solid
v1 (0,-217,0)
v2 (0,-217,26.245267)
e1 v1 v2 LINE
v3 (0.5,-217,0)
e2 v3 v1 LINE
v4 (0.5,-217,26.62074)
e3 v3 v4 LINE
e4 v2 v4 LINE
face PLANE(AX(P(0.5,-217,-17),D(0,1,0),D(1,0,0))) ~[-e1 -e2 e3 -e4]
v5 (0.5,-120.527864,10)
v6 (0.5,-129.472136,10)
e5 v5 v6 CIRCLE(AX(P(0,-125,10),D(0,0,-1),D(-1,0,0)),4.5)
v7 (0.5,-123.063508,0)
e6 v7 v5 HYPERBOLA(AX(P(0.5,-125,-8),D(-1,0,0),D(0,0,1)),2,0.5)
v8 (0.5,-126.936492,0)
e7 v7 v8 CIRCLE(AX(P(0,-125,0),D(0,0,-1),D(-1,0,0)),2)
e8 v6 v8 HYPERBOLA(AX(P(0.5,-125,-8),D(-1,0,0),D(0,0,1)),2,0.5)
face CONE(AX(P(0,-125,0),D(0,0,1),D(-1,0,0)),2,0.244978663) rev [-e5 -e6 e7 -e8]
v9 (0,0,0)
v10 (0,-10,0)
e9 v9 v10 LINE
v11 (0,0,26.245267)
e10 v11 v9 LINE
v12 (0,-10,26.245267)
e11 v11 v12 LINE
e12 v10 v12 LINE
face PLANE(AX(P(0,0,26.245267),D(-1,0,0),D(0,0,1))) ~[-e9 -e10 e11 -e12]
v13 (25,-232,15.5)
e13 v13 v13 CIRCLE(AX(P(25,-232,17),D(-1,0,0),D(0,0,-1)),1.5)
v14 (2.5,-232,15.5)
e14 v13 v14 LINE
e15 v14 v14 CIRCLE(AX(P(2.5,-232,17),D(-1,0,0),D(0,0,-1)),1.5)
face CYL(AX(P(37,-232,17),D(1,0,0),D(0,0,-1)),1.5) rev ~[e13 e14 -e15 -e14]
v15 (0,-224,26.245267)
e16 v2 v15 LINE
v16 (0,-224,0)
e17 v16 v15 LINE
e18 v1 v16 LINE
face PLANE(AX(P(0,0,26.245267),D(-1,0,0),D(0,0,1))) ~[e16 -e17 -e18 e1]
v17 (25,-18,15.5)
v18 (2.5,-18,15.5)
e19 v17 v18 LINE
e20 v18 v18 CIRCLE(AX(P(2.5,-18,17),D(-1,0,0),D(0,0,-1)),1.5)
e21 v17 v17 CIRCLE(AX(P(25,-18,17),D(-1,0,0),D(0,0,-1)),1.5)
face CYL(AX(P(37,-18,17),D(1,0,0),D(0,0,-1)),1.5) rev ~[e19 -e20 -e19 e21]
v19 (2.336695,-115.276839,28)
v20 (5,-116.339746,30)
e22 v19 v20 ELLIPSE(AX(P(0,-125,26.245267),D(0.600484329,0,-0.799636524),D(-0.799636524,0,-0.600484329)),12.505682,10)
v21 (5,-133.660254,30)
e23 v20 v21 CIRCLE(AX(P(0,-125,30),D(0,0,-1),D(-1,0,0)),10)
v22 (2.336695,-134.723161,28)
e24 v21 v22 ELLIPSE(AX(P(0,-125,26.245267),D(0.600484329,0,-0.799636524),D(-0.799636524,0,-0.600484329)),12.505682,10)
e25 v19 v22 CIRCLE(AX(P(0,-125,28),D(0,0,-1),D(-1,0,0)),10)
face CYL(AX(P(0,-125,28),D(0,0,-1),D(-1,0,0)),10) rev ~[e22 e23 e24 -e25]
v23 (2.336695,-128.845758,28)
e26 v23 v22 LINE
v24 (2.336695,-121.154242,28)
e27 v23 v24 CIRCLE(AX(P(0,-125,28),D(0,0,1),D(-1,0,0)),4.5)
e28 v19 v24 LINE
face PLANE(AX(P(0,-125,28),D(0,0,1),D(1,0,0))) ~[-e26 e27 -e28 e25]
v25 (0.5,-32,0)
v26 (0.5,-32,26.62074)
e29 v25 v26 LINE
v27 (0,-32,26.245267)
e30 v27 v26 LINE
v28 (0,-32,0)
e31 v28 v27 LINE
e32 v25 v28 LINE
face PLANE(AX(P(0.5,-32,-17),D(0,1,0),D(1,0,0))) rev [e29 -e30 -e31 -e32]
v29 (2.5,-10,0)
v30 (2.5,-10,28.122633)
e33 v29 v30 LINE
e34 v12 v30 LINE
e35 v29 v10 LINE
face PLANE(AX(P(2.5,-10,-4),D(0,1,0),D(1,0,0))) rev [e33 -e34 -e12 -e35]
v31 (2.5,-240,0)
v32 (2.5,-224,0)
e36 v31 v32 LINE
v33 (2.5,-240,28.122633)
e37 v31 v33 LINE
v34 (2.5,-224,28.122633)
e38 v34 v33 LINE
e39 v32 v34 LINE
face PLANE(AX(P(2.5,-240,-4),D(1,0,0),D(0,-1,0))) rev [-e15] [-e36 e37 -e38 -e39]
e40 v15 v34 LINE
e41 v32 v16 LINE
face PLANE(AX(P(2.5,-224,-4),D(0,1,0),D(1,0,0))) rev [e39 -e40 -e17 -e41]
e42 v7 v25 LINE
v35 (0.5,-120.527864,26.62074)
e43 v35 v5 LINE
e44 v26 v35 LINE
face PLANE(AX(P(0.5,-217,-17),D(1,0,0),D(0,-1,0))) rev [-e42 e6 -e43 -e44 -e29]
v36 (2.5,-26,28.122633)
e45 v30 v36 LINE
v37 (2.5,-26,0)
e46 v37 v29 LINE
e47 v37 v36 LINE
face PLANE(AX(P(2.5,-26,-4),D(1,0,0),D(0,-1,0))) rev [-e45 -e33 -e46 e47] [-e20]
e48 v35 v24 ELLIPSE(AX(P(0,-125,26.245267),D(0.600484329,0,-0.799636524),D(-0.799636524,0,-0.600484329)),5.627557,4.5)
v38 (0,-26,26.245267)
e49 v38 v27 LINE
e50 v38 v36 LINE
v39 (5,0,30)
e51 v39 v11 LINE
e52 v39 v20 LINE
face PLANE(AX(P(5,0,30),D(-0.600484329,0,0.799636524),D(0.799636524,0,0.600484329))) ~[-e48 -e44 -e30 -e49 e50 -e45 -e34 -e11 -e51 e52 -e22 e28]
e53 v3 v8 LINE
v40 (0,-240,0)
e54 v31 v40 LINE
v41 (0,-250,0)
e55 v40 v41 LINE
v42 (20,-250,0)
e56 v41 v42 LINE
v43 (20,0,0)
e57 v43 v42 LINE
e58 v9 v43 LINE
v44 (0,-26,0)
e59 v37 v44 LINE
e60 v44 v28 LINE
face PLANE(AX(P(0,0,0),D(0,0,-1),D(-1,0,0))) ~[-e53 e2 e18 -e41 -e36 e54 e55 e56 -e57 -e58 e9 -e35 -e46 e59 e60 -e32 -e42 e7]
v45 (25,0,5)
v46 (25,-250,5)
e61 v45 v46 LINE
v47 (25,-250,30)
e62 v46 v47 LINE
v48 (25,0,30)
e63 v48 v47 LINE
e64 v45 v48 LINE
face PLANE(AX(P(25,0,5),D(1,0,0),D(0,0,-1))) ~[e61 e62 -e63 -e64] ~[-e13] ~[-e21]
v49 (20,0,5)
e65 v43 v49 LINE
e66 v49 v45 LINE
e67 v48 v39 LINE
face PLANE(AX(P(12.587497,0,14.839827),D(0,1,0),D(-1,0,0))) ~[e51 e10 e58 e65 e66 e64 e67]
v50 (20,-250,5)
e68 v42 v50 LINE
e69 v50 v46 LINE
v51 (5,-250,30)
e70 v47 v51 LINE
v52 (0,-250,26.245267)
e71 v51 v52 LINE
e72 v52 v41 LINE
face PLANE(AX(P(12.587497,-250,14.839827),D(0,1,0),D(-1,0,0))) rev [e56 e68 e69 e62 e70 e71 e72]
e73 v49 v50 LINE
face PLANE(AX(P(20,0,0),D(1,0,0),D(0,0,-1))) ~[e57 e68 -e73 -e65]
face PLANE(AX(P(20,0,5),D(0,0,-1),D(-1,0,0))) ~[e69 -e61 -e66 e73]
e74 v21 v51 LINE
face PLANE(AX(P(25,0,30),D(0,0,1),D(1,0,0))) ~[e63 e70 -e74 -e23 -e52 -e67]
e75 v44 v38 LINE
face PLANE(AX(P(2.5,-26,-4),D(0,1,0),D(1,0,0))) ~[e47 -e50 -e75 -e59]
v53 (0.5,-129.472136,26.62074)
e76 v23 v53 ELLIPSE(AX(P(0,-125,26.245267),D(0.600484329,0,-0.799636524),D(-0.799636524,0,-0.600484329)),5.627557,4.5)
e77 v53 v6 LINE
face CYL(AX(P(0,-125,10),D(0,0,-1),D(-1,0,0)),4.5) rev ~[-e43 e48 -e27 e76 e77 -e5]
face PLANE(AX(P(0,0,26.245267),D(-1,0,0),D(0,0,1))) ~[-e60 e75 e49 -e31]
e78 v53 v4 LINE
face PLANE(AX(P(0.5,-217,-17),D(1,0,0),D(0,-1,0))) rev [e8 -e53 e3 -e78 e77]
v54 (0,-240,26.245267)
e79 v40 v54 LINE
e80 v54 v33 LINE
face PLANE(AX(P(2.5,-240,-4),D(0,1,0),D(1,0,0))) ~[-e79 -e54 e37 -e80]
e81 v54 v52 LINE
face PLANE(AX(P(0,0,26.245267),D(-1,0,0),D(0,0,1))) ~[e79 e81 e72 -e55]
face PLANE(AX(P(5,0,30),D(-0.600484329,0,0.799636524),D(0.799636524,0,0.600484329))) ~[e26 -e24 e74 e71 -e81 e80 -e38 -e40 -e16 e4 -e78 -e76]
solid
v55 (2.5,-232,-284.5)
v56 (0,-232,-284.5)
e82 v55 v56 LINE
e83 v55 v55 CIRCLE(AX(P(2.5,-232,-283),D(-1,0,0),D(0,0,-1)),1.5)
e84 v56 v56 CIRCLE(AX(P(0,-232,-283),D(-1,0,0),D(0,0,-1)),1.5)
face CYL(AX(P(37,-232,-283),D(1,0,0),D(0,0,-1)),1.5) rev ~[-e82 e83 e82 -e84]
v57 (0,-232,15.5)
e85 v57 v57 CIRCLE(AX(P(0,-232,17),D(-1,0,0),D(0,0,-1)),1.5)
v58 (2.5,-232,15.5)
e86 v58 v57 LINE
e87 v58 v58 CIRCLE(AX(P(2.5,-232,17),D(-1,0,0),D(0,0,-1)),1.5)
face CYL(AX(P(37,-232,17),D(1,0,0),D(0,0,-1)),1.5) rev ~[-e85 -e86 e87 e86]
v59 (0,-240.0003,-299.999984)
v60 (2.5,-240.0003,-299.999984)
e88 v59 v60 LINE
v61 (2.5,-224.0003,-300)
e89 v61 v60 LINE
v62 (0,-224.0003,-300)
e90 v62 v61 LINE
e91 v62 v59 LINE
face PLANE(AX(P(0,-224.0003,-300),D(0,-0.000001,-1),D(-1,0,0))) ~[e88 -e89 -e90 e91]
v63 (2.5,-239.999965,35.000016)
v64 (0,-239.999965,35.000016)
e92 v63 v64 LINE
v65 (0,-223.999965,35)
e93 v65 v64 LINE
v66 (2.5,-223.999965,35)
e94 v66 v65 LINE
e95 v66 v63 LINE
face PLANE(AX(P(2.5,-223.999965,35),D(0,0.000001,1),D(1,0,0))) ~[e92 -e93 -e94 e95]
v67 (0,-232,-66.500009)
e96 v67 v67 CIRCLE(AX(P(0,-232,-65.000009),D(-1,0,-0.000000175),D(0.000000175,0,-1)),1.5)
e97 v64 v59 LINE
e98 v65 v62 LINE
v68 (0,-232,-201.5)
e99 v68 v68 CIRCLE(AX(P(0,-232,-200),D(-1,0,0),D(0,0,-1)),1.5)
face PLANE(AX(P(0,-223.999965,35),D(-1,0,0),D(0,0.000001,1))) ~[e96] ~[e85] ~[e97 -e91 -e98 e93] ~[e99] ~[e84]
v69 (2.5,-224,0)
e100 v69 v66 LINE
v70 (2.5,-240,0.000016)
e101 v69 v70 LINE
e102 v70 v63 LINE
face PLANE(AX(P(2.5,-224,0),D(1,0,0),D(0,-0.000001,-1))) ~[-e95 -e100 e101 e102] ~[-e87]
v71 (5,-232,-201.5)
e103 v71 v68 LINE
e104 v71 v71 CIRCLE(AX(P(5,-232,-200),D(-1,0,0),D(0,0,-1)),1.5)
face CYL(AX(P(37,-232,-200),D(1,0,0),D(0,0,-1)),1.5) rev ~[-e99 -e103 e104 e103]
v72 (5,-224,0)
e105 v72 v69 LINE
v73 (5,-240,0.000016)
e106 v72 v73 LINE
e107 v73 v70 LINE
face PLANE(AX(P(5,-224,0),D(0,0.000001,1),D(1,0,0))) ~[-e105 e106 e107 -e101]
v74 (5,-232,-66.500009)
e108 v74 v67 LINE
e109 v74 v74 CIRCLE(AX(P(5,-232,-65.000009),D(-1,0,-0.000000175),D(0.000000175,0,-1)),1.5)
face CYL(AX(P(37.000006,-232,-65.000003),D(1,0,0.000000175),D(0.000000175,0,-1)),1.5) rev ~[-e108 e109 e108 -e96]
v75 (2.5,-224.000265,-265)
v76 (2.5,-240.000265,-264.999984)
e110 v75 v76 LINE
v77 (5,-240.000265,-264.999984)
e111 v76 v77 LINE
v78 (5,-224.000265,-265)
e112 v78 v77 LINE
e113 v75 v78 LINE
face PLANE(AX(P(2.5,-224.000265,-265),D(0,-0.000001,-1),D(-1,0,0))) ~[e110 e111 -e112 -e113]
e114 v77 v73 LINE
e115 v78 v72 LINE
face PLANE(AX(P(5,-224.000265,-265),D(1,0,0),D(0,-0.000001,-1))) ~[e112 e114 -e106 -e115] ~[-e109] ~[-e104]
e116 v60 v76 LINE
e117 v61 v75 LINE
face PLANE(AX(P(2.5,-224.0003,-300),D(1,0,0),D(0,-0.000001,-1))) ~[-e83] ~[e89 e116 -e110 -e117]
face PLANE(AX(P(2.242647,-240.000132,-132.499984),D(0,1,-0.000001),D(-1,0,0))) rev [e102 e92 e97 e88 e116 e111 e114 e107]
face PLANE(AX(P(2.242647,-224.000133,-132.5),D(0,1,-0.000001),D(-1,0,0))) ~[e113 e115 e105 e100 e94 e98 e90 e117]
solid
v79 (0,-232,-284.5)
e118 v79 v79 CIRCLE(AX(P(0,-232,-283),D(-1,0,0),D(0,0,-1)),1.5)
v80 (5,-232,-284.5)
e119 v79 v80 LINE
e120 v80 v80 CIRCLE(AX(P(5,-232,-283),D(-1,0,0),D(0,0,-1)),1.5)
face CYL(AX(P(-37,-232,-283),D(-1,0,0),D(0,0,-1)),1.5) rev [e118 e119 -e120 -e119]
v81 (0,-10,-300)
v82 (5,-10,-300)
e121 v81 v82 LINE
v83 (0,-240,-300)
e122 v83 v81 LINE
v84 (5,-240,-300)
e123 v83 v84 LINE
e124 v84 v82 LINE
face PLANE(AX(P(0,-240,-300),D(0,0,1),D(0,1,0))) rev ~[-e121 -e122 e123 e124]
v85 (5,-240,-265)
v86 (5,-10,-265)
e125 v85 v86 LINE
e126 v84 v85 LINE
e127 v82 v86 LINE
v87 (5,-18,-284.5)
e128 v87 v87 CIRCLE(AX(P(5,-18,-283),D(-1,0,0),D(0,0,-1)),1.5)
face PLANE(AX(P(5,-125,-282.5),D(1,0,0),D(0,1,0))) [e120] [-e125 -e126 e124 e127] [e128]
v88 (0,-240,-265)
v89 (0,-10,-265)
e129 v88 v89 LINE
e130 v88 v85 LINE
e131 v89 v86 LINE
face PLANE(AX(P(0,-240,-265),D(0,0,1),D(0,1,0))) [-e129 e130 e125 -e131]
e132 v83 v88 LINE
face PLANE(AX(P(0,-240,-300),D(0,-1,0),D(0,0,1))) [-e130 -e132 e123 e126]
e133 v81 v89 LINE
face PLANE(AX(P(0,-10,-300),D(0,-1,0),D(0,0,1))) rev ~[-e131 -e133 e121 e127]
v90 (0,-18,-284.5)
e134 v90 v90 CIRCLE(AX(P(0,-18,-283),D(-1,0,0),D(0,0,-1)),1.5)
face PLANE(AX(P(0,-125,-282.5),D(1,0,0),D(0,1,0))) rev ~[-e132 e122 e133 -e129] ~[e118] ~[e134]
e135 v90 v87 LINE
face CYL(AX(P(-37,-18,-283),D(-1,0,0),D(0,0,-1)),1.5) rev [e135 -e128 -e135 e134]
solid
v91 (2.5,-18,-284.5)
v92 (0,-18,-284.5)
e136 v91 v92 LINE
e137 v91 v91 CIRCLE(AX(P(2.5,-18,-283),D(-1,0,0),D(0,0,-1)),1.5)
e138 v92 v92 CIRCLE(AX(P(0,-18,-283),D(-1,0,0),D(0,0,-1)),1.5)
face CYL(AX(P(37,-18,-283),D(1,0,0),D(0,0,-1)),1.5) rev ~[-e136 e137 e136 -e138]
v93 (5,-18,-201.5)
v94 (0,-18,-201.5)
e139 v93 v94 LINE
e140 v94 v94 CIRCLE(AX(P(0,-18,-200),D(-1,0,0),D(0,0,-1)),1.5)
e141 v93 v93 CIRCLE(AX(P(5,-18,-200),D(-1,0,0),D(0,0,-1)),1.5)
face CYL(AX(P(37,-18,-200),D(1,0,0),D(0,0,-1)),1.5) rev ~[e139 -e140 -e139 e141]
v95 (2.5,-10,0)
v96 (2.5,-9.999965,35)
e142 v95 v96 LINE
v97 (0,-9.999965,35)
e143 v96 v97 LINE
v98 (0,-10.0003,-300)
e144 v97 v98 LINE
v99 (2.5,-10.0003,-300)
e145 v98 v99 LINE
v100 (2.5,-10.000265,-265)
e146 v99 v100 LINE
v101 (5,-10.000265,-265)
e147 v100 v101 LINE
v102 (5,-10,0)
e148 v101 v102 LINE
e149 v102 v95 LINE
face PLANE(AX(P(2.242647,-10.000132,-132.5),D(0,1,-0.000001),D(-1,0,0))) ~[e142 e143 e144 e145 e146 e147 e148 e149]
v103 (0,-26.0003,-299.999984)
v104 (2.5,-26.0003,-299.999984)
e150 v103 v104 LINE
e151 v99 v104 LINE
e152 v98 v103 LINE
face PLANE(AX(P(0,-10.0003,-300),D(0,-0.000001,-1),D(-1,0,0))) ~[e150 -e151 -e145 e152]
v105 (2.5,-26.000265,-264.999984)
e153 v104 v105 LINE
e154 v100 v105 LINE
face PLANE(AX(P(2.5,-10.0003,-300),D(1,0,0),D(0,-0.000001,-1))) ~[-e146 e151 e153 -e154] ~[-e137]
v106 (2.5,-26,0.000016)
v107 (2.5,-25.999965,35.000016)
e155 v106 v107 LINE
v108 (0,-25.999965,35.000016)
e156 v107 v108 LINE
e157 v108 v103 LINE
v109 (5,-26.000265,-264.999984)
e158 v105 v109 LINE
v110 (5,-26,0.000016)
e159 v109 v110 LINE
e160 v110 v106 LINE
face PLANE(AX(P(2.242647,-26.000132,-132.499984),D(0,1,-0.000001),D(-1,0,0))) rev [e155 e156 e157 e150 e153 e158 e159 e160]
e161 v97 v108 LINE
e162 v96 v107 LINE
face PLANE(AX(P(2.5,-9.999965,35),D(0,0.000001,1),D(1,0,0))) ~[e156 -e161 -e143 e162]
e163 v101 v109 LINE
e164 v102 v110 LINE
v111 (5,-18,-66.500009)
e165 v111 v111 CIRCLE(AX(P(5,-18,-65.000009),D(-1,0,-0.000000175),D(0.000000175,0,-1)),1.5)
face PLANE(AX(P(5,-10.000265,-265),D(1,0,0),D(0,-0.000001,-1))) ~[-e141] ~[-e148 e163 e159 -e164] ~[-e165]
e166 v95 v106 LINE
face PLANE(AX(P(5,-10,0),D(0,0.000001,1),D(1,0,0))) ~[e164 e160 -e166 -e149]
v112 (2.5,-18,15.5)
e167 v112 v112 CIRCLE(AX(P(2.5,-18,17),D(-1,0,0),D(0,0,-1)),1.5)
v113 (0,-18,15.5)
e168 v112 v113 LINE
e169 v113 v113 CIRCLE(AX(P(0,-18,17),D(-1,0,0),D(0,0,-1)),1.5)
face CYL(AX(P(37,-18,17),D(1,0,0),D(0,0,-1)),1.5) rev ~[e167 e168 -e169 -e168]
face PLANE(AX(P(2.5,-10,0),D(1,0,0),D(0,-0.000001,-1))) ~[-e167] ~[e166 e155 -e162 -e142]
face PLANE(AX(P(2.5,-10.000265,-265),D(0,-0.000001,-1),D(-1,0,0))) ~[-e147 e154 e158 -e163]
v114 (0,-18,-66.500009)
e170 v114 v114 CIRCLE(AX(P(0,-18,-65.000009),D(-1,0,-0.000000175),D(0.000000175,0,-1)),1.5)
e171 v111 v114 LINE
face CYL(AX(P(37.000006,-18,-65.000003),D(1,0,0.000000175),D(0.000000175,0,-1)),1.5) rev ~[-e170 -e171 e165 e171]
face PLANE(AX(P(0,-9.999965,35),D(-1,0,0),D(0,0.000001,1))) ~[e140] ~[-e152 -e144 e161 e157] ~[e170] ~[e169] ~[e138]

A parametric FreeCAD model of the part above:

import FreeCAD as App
import Part
import Sketcher
from FreeCAD import Vector


def add_polygon(sketch, points):
    """Adds a closed chain of lines whose ends are joined by coincident constraints."""
    first, n = sketch.GeometryCount, len(points)
    for a, b in zip(points, points[1:] + points[:1]):
        sketch.addGeometry(Part.LineSegment(App.Vector(*a, 0), App.Vector(*b, 0)), False)
    for i in range(n):
        sketch.addConstraint(Sketcher.Constraint("Coincident", first + i, 2, first + (i + 1) % n, 1))

doc = App.newDocument("Part")
params = doc.addObject("Spreadsheet::Sheet", "Params")
for row, (alias, value) in enumerate([
    ("sketch1_diameter", "3 mm"),
    ("pad1_length", "47 mm"),
    ("sketch2_diameter", "3 mm"),
    ("pad2_length", "47 mm"),
    ("sketch3_width", "230 mm"),
    ("sketch3_height", "35 mm"),
    ("pad3_length", "5 mm"),
    ("sketch4_diameter", "3 mm"),
    ("pad4_length", "47 mm"),
    ("sketch5_diameter", "3 mm"),
    ("pad5_length", "47 mm"),
    ("sketch6_width", "2 mm"),
    ("sketch6_height", "10 mm"),
    ("sketch6_width2", "4.5 mm"),
    ("revolution_angle", "360 deg"),
    ("sketch7_diameter", "20 mm"),
    ("pad6_length", "2 mm"),
    ("sketch8_diameter", "9 mm"),
    ("pad7_length", "20 mm"),
    ("sketch9_height", "185 mm"),
    ("sketch9_width", "2.6 mm"),
    ("pad8_length", "45 mm"),
    ("sketch10_height", "16 mm"),
    ("sketch10_width", "6.6 mm"),
    ("pad9_length", "45 mm"),
    ("sketch11_height", "16 mm"),
    ("sketch11_width", "7.6 mm"),
    ("pad10_length", "45 mm"),
    ("sketch12_width", "20 mm"),
    ("sketch12_width2", "5 mm"),
    ("sketch12_height", "25 mm"),
    ("pad11_length", "250 mm"),
    ("sketch13_diameter", "3 mm"),
    ("pad12_length", "47 mm"),
    ("sketch14_diameter", "3 mm"),
    ("pad13_length", "47 mm"),
    ("sketch15_diameter", "3 mm"),
    ("pad14_length", "47 mm"),
    ("sketch16_diameter", "3 mm"),
    ("pad15_length", "47 mm"),
    ("sketch17_height", "265 mm"),
    ("sketch17_height2", "35 mm"),
    ("sketch17_width", "2.5 mm"),
    ("pad16_length", "16 mm"),
], start=1):
    params.set(f"A{row}", alias)
    params.set(f"B{row}", "=" + value)
    params.setAlias(f"B{row}", alias)

body = doc.addObject("PartDesign::Body", "Body")

sketch1 = body.newObject("Sketcher::SketchObject", "Sketch")
sketch1.AttachmentSupport = (doc.getObject("XY_Plane"), [""])
sketch1.MapMode = "FlatFace"
sketch1.addGeometry(Part.Circle(Vector(0, 0, 0), Vector(0, 0, 1), 1.5), False)
sketch1.addConstraint(Sketcher.Constraint("Coincident", 0, 3, -1, 1))
sketch1.addConstraint(Sketcher.Constraint("Diameter", 0, 3.0))
sketch1.setExpression("Constraints[1]", "Params.sketch1_diameter")
pad1 = body.newObject("PartDesign::Pad", "Pad")
pad1.Profile = sketch1
pad1.setExpression("Length", "Params.pad1_length")
body2 = doc.addObject("PartDesign::Body", "Body001")
doc.recompute()

body.Placement = App.Placement(Vector(0, 0, 0), App.Rotation(Vector(0, 1, 0), 90))
boolean = body2.newObject("PartDesign::Boolean", "Boolean")
boolean.Type = "Fuse"
boolean.addObjects([body])
body3 = doc.addObject("PartDesign::Body", "Body002")
doc.recompute()

body2.Placement = App.Placement(Vector(-37, -18, -283), App.Rotation(Vector(0, 0, 1), 0))
boolean2 = body3.newObject("PartDesign::Boolean", "Boolean001")
boolean2.Type = "Fuse"
boolean2.addObjects([body2])
body4 = doc.addObject("PartDesign::Body", "Body003")

sketch2 = body4.newObject("Sketcher::SketchObject", "Sketch001")
sketch2.AttachmentSupport = (doc.getObject("XY_Plane003"), [""])
sketch2.MapMode = "FlatFace"
sketch2.addGeometry(Part.Circle(Vector(0, 0, 0), Vector(0, 0, 1), 1.5), False)
sketch2.addConstraint(Sketcher.Constraint("Coincident", 0, 3, -1, 1))
sketch2.addConstraint(Sketcher.Constraint("Diameter", 0, 3.0))
sketch2.setExpression("Constraints[1]", "Params.sketch2_diameter")
pad2 = body4.newObject("PartDesign::Pad", "Pad001")
pad2.Profile = sketch2
pad2.setExpression("Length", "Params.pad2_length")
body5 = doc.addObject("PartDesign::Body", "Body004")
doc.recompute()

body4.Placement = App.Placement(Vector(0, 0, 0), App.Rotation(Vector(0, 1, 0), 90))
boolean3 = body5.newObject("PartDesign::Boolean", "Boolean002")
boolean3.Type = "Fuse"
boolean3.addObjects([body4])
body6 = doc.addObject("PartDesign::Body", "Body005")
body6.AllowCompound = True
doc.recompute()

body5.Placement = App.Placement(Vector(-37, -232, -283), App.Rotation(Vector(0, 0, 1), 0))
boolean4 = body6.newObject("PartDesign::Boolean", "Boolean003")
boolean4.Type = "Fuse"
boolean4.addObjects([body5])
doc.recompute()

boolean5 = body6.newObject("PartDesign::Boolean", "Boolean004")
boolean5.Type = "Fuse"
boolean5.addObjects([body3])
body7 = doc.addObject("PartDesign::Body", "Body006")

sketch3 = body7.newObject("Sketcher::SketchObject", "Sketch002")
sketch3.AttachmentSupport = (doc.getObject("YZ_Plane006"), [""])
sketch3.MapMode = "FlatFace"
add_polygon(sketch3, [(-240, -265), (-240, -300), (-10, -300), (-10, -265)])
sketch3.addConstraint(Sketcher.Constraint("Vertical", 0))
sketch3.addConstraint(Sketcher.Constraint("Horizontal", 1))
sketch3.addConstraint(Sketcher.Constraint("Vertical", 2))
sketch3.addConstraint(Sketcher.Constraint("Horizontal", 3))
sketch3.addConstraint(Sketcher.Constraint("DistanceX", 1, 1, 1, 2, 230.0))
sketch3.addConstraint(Sketcher.Constraint("DistanceY", 0, 2, 0, 1, 35.0))
sketch3.addConstraint(Sketcher.Constraint("DistanceX", 0, 2, -1, 1, 240.0))
sketch3.addConstraint(Sketcher.Constraint("DistanceY", 0, 2, -1, 1, 300.0))
sketch3.setExpression("Constraints[8]", "Params.sketch3_width")
sketch3.setExpression("Constraints[9]", "Params.sketch3_height")
pad3 = body7.newObject("PartDesign::Pad", "Pad002")
pad3.Profile = sketch3
pad3.setExpression("Length", "Params.pad3_length")
doc.recompute()

boolean6 = body7.newObject("PartDesign::Boolean", "Boolean005")
boolean6.Type = "Cut"
boolean6.addObjects([body6])
body8 = doc.addObject("PartDesign::Body", "Body007")

sketch4 = body8.newObject("Sketcher::SketchObject", "Sketch003")
sketch4.AttachmentSupport = (doc.getObject("XY_Plane007"), [""])
sketch4.MapMode = "FlatFace"
sketch4.addGeometry(Part.Circle(Vector(0, 0, 0), Vector(0, 0, 1), 1.5), False)
sketch4.addConstraint(Sketcher.Constraint("Coincident", 0, 3, -1, 1))
sketch4.addConstraint(Sketcher.Constraint("Diameter", 0, 3.0))
sketch4.setExpression("Constraints[1]", "Params.sketch4_diameter")
pad4 = body8.newObject("PartDesign::Pad", "Pad003")
pad4.Profile = sketch4
pad4.setExpression("Length", "Params.pad4_length")
body9 = doc.addObject("PartDesign::Body", "Body008")
doc.recompute()

body8.Placement = App.Placement(Vector(0, 0, 0), App.Rotation(Vector(0, 1, 0), 90))
boolean7 = body9.newObject("PartDesign::Boolean", "Boolean006")
boolean7.Type = "Fuse"
boolean7.addObjects([body8])
body10 = doc.addObject("PartDesign::Body", "Body009")
doc.recompute()

body9.Placement = App.Placement(Vector(-37, -232, 17), App.Rotation(Vector(0, 0, 1), 0))
boolean8 = body10.newObject("PartDesign::Boolean", "Boolean007")
boolean8.Type = "Fuse"
boolean8.addObjects([body9])
body11 = doc.addObject("PartDesign::Body", "Body010")

sketch5 = body11.newObject("Sketcher::SketchObject", "Sketch004")
sketch5.AttachmentSupport = (doc.getObject("XY_Plane010"), [""])
sketch5.MapMode = "FlatFace"
sketch5.addGeometry(Part.Circle(Vector(0, 0, 0), Vector(0, 0, 1), 1.5), False)
sketch5.addConstraint(Sketcher.Constraint("Coincident", 0, 3, -1, 1))
sketch5.addConstraint(Sketcher.Constraint("Diameter", 0, 3.0))
sketch5.setExpression("Constraints[1]", "Params.sketch5_diameter")
pad5 = body11.newObject("PartDesign::Pad", "Pad004")
pad5.Profile = sketch5
pad5.setExpression("Length", "Params.pad5_length")
body12 = doc.addObject("PartDesign::Body", "Body011")
doc.recompute()

body11.Placement = App.Placement(Vector(0, 0, 0), App.Rotation(Vector(0, 1, 0), 90))
boolean9 = body12.newObject("PartDesign::Boolean", "Boolean008")
boolean9.Type = "Fuse"
boolean9.addObjects([body11])
body13 = doc.addObject("PartDesign::Body", "Body012")
body13.AllowCompound = True
doc.recompute()

body12.Placement = App.Placement(Vector(-37, -18, 17), App.Rotation(Vector(0, 0, 1), 0))
boolean10 = body13.newObject("PartDesign::Boolean", "Boolean009")
boolean10.Type = "Fuse"
boolean10.addObjects([body12])
doc.recompute()

boolean11 = body13.newObject("PartDesign::Boolean", "Boolean010")
boolean11.Type = "Fuse"
boolean11.addObjects([body10])
body14 = doc.addObject("PartDesign::Body", "Body013")

sketch6 = body14.newObject("Sketcher::SketchObject", "Sketch005")
sketch6.AttachmentSupport = (doc.getObject("XZ_Plane013"), [""])
sketch6.MapMode = "FlatFace"
add_polygon(sketch6, [(0, 0), (2, 0), (4.5, 10), (0, 10)])
sketch6.addConstraint(Sketcher.Constraint("Horizontal", 0))
sketch6.addConstraint(Sketcher.Constraint("Horizontal", 2))
sketch6.addConstraint(Sketcher.Constraint("Vertical", 3))
sketch6.addConstraint(Sketcher.Constraint("Coincident", 3, 2, -1, 1))
sketch6.addConstraint(Sketcher.Constraint("DistanceX", 0, 1, 0, 2, 2.0))
sketch6.addConstraint(Sketcher.Constraint("DistanceY", 3, 2, 3, 1, 10.0))
sketch6.addConstraint(Sketcher.Constraint("DistanceX", 2, 2, 2, 1, 4.5))
sketch6.setExpression("Constraints[8]", "Params.sketch6_width")
sketch6.setExpression("Constraints[9]", "Params.sketch6_height")
sketch6.setExpression("Constraints[10]", "Params.sketch6_width2")
revolution = body14.newObject("PartDesign::Revolution", "Revolution")
revolution.Profile = sketch6
revolution.ReferenceAxis = (sketch6, ["V_Axis"])
revolution.setExpression("Angle", "Params.revolution_angle")
body15 = doc.addObject("PartDesign::Body", "Body014")

sketch7 = body15.newObject("Sketcher::SketchObject", "Sketch006")
sketch7.AttachmentSupport = (doc.getObject("XY_Plane014"), [""])
sketch7.MapMode = "FlatFace"
sketch7.AttachmentOffset = App.Placement(Vector(0, 0, 28), App.Rotation())
sketch7.addGeometry(Part.Circle(Vector(0, 0, 0), Vector(0, 0, 1), 10), False)
sketch7.addConstraint(Sketcher.Constraint("Coincident", 0, 3, -1, 1))
sketch7.addConstraint(Sketcher.Constraint("Diameter", 0, 20.0))
sketch7.setExpression("Constraints[1]", "Params.sketch7_diameter")
pad6 = body15.newObject("PartDesign::Pad", "Pad005")
pad6.Profile = sketch7
pad6.setExpression("Length", "Params.pad6_length")
body16 = doc.addObject("PartDesign::Body", "Body015")

sketch8 = body16.newObject("Sketcher::SketchObject", "Sketch007")
sketch8.AttachmentSupport = (doc.getObject("XY_Plane015"), [""])
sketch8.MapMode = "FlatFace"
sketch8.AttachmentOffset = App.Placement(Vector(0, 0, 10), App.Rotation())
sketch8.addGeometry(Part.Circle(Vector(0, 0, 0), Vector(0, 0, 1), 4.5), False)
sketch8.addConstraint(Sketcher.Constraint("Coincident", 0, 3, -1, 1))
sketch8.addConstraint(Sketcher.Constraint("Diameter", 0, 9.0))
sketch8.setExpression("Constraints[1]", "Params.sketch8_diameter")
pad7 = body16.newObject("PartDesign::Pad", "Pad006")
pad7.Profile = sketch8
pad7.setExpression("Length", "Params.pad7_length")
doc.recompute()

boolean12 = body16.newObject("PartDesign::Boolean", "Boolean011")
boolean12.Type = "Fuse"
boolean12.addObjects([body14])
doc.recompute()

boolean13 = body16.newObject("PartDesign::Boolean", "Boolean012")
boolean13.Type = "Fuse"
boolean13.addObjects([body15])
body17 = doc.addObject("PartDesign::Body", "Body016")
doc.recompute()

body16.Placement = App.Placement(Vector(0, -125, 0), App.Rotation(Vector(0, 0, 1), 0))
boolean14 = body17.newObject("PartDesign::Boolean", "Boolean013")
boolean14.Type = "Fuse"
boolean14.addObjects([body16])
body18 = doc.addObject("PartDesign::Body", "Body017")

sketch9 = body18.newObject("Sketcher::SketchObject", "Sketch008")
sketch9.AttachmentSupport = (doc.getObject("XY_Plane017"), [""])
sketch9.MapMode = "FlatFace"
sketch9.AttachmentOffset = App.Placement(Vector(0, 0, -17), App.Rotation())
add_polygon(sketch9, [(-0.5, -32), (-0.5, -217), (2.1, -217), (2.1, -32)])
sketch9.addConstraint(Sketcher.Constraint("Vertical", 0))
sketch9.addConstraint(Sketcher.Constraint("Horizontal", 1))
sketch9.addConstraint(Sketcher.Constraint("Vertical", 2))
sketch9.addConstraint(Sketcher.Constraint("Horizontal", 3))
sketch9.addConstraint(Sketcher.Constraint("DistanceY", 0, 2, 0, 1, 185.0))
sketch9.addConstraint(Sketcher.Constraint("DistanceX", 1, 1, 1, 2, 2.6))
sketch9.addConstraint(Sketcher.Constraint("DistanceY", 0, 2, -1, 1, 217.0))
sketch9.addConstraint(Sketcher.Constraint("DistanceX", 0, 2, -1, 1, 0.5))
sketch9.setExpression("Constraints[8]", "Params.sketch9_height")
sketch9.setExpression("Constraints[9]", "Params.sketch9_width")
pad8 = body18.newObject("PartDesign::Pad", "Pad007")
pad8.Profile = sketch9
pad8.setExpression("Length", "Params.pad8_length")
body19 = doc.addObject("PartDesign::Body", "Body018")

sketch10 = body19.newObject("Sketcher::SketchObject", "Sketch009")
sketch10.AttachmentSupport = (doc.getObject("XY_Plane018"), [""])
sketch10.MapMode = "FlatFace"
sketch10.AttachmentOffset = App.Placement(Vector(0, 0, -4), App.Rotation())
add_polygon(sketch10, [(-2, -10), (-2, -26), (4, -26), (4, -10)])
sketch10.addConstraint(Sketcher.Constraint("Vertical", 0))
sketch10.addConstraint(Sketcher.Constraint("Horizontal", 1))
sketch10.addConstraint(Sketcher.Constraint("Vertical", 2))
sketch10.addConstraint(Sketcher.Constraint("Horizontal", 3))
sketch10.addConstraint(Sketcher.Constraint("DistanceY", 0, 2, 0, 1, 16.0))
sketch10.addConstraint(Sketcher.Constraint("DistanceX", 1, 1, 1, 2, 6.6))
sketch10.addConstraint(Sketcher.Constraint("DistanceY", 0, 2, -1, 1, 26.0))
sketch10.addConstraint(Sketcher.Constraint("DistanceX", 0, 2, -1, 1, 2.5))
sketch10.setExpression("Constraints[8]", "Params.sketch10_height")
sketch10.setExpression("Constraints[9]", "Params.sketch10_width")
pad9 = body19.newObject("PartDesign::Pad", "Pad008")
pad9.Profile = sketch10
pad9.setExpression("Length", "Params.pad9_length")
body20 = doc.addObject("PartDesign::Body", "Body019")
body20.AllowCompound = True

sketch11 = body20.newObject("Sketcher::SketchObject", "Sketch010")
sketch11.AttachmentSupport = (doc.getObject("XY_Plane019"), [""])
sketch11.MapMode = "FlatFace"
sketch11.AttachmentOffset = App.Placement(Vector(0, 0, -4), App.Rotation())
add_polygon(sketch11, [(-2, -224), (-2, -240), (5, -240), (5, -224)])
sketch11.addConstraint(Sketcher.Constraint("Vertical", 0))
sketch11.addConstraint(Sketcher.Constraint("Horizontal", 1))
sketch11.addConstraint(Sketcher.Constraint("Vertical", 2))
sketch11.addConstraint(Sketcher.Constraint("Horizontal", 3))
sketch11.addConstraint(Sketcher.Constraint("DistanceY", 0, 2, 0, 1, 16.0))
sketch11.addConstraint(Sketcher.Constraint("DistanceX", 1, 1, 1, 2, 7.6))
sketch11.addConstraint(Sketcher.Constraint("DistanceY", 0, 2, -1, 1, 240.0))
sketch11.addConstraint(Sketcher.Constraint("DistanceX", 0, 2, -1, 1, 2.5))
sketch11.setExpression("Constraints[8]", "Params.sketch11_height")
sketch11.setExpression("Constraints[9]", "Params.sketch11_width")
pad10 = body20.newObject("PartDesign::Pad", "Pad009")
pad10.Profile = sketch11
pad10.setExpression("Length", "Params.pad10_length")
doc.recompute()

boolean15 = body20.newObject("PartDesign::Boolean", "Boolean014")
boolean15.Type = "Fuse"
boolean15.addObjects([body18])
doc.recompute()

boolean16 = body20.newObject("PartDesign::Boolean", "Boolean015")
boolean16.Type = "Fuse"
boolean16.addObjects([body19])
body21 = doc.addObject("PartDesign::Body", "Body020")

sketch12 = body21.newObject("Sketcher::SketchObject", "Sketch011")
sketch12.AttachmentSupport = (doc.getObject("XZ_Plane020"), [""])
sketch12.MapMode = "FlatFace"
add_polygon(sketch12, [(-20, 5), (-20, 0), (0, 0), (0, 26), (-5, 30), (-25, 30), (-25, 5)])
sketch12.addConstraint(Sketcher.Constraint("Vertical", 0))
sketch12.addConstraint(Sketcher.Constraint("Horizontal", 1))
sketch12.addConstraint(Sketcher.Constraint("Vertical", 2))
sketch12.addConstraint(Sketcher.Constraint("Horizontal", 4))
sketch12.addConstraint(Sketcher.Constraint("Vertical", 5))
sketch12.addConstraint(Sketcher.Constraint("Horizontal", 6))
sketch12.addConstraint(Sketcher.Constraint("Coincident", 1, 2, -1, 1))
sketch12.addConstraint(Sketcher.Constraint("Equal", 1, 4))
sketch12.addConstraint(Sketcher.Constraint("Equal", 6, 0))
sketch12.addConstraint(Sketcher.Constraint("DistanceX", 1, 1, 1, 2, 20.0))
sketch12.addConstraint(Sketcher.Constraint("DistanceX", 6, 1, 6, 2, 5.0))
sketch12.addConstraint(Sketcher.Constraint("DistanceY", 5, 2, 5, 1, 25.0))
sketch12.addConstraint(Sketcher.Constraint("Distance", 3, 6.252841))
sketch12.setExpression("Constraints[16]", "Params.sketch12_width")
sketch12.setExpression("Constraints[17]", "Params.sketch12_width2")
sketch12.setExpression("Constraints[18]", "Params.sketch12_height")
pad11 = body21.newObject("PartDesign::Pad", "Pad010")
pad11.Profile = sketch12
pad11.setExpression("Length", "Params.pad11_length")
doc.recompute()

boolean17 = body21.newObject("PartDesign::Boolean", "Boolean016")
boolean17.Type = "Cut"
boolean17.addObjects([body20])
doc.recompute()

boolean18 = body21.newObject("PartDesign::Boolean", "Boolean017")
boolean18.Type = "Cut"
boolean18.addObjects([body17])
doc.recompute()

boolean19 = body21.newObject("PartDesign::Boolean", "Boolean018")
boolean19.Type = "Cut"
boolean19.addObjects([body13])
body22 = doc.addObject("PartDesign::Body", "Body021")
doc.recompute()

mirroring = doc.addObject("Part::Mirroring", "Mirroring")
mirroring.Source = body21
mirroring.Base = Vector(0, 0, 0)
mirroring.Normal = Vector(1, 0, 0)
body22.BaseFeature = mirroring
doc.recompute()
body23 = doc.addObject("PartDesign::Body", "Body022")

sketch13 = body23.newObject("Sketcher::SketchObject", "Sketch012")
sketch13.AttachmentSupport = (doc.getObject("XY_Plane022"), [""])
sketch13.MapMode = "FlatFace"
sketch13.addGeometry(Part.Circle(Vector(0, 0, 0), Vector(0, 0, 1), 1.5), False)
sketch13.addConstraint(Sketcher.Constraint("Coincident", 0, 3, -1, 1))
sketch13.addConstraint(Sketcher.Constraint("Diameter", 0, 3.0))
sketch13.setExpression("Constraints[1]", "Params.sketch13_diameter")
pad12 = body23.newObject("PartDesign::Pad", "Pad011")
pad12.Profile = sketch13
pad12.setExpression("Length", "Params.pad12_length")
body24 = doc.addObject("PartDesign::Body", "Body023")
doc.recompute()

body23.Placement = App.Placement(Vector(0, 0, 0), App.Rotation(Vector(0, 1, 0), 90))
boolean20 = body24.newObject("PartDesign::Boolean", "Boolean019")
boolean20.Type = "Fuse"
boolean20.addObjects([body23])
body25 = doc.addObject("PartDesign::Body", "Body024")
doc.recompute()

body24.Placement = App.Placement(Vector(-37, -18, -200), App.Rotation(Vector(0, 0, 1), 0))
boolean21 = body25.newObject("PartDesign::Boolean", "Boolean020")
boolean21.Type = "Fuse"
boolean21.addObjects([body24])
body26 = doc.addObject("PartDesign::Body", "Body025")

sketch14 = body26.newObject("Sketcher::SketchObject", "Sketch013")
sketch14.AttachmentSupport = (doc.getObject("XY_Plane025"), [""])
sketch14.MapMode = "FlatFace"
sketch14.addGeometry(Part.Circle(Vector(0, 0, 0), Vector(0, 0, 1), 1.5), False)
sketch14.addConstraint(Sketcher.Constraint("Coincident", 0, 3, -1, 1))
sketch14.addConstraint(Sketcher.Constraint("Diameter", 0, 3.0))
sketch14.setExpression("Constraints[1]", "Params.sketch14_diameter")
pad13 = body26.newObject("PartDesign::Pad", "Pad012")
pad13.Profile = sketch14
pad13.setExpression("Length", "Params.pad13_length")
body27 = doc.addObject("PartDesign::Body", "Body026")
doc.recompute()

body26.Placement = App.Placement(Vector(0, 0, 0), App.Rotation(Vector(0, 1, 0), 90))
boolean22 = body27.newObject("PartDesign::Boolean", "Boolean021")
boolean22.Type = "Fuse"
boolean22.addObjects([body26])
body28 = doc.addObject("PartDesign::Body", "Body027")
doc.recompute()

body27.Placement = App.Placement(Vector(-37, -18, -283), App.Rotation(Vector(0, 0, 1), 0))
boolean23 = body28.newObject("PartDesign::Boolean", "Boolean022")
boolean23.Type = "Fuse"
boolean23.addObjects([body27])
body29 = doc.addObject("PartDesign::Body", "Body028")

sketch15 = body29.newObject("Sketcher::SketchObject", "Sketch014")
sketch15.AttachmentSupport = (doc.getObject("XY_Plane028"), [""])
sketch15.MapMode = "FlatFace"
sketch15.addGeometry(Part.Circle(Vector(0, 0, 0), Vector(0, 0, 1), 1.5), False)
sketch15.addConstraint(Sketcher.Constraint("Coincident", 0, 3, -1, 1))
sketch15.addConstraint(Sketcher.Constraint("Diameter", 0, 3.0))
sketch15.setExpression("Constraints[1]", "Params.sketch15_diameter")
pad14 = body29.newObject("PartDesign::Pad", "Pad013")
pad14.Profile = sketch15
pad14.setExpression("Length", "Params.pad14_length")
body30 = doc.addObject("PartDesign::Body", "Body029")
doc.recompute()

body29.Placement = App.Placement(Vector(0, 0, 0), App.Rotation(Vector(0, 1, 0), 90))
boolean24 = body30.newObject("PartDesign::Boolean", "Boolean023")
boolean24.Type = "Fuse"
boolean24.addObjects([body29])
body31 = doc.addObject("PartDesign::Body", "Body030")
doc.recompute()

body30.Placement = App.Placement(Vector(-37, -18, 17), App.Rotation(Vector(0, 0, 1), 0))
boolean25 = body31.newObject("PartDesign::Boolean", "Boolean024")
boolean25.Type = "Fuse"
boolean25.addObjects([body30])
body32 = doc.addObject("PartDesign::Body", "Body031")

sketch16 = body32.newObject("Sketcher::SketchObject", "Sketch015")
sketch16.AttachmentSupport = (doc.getObject("XY_Plane031"), [""])
sketch16.MapMode = "FlatFace"
sketch16.addGeometry(Part.Circle(Vector(0, 0, 0), Vector(0, 0, 1), 1.5), False)
sketch16.addConstraint(Sketcher.Constraint("Coincident", 0, 3, -1, 1))
sketch16.addConstraint(Sketcher.Constraint("Diameter", 0, 3.0))
sketch16.setExpression("Constraints[1]", "Params.sketch16_diameter")
pad15 = body32.newObject("PartDesign::Pad", "Pad014")
pad15.Profile = sketch16
pad15.setExpression("Length", "Params.pad15_length")
body33 = doc.addObject("PartDesign::Body", "Body032")
body33.AllowCompound = True
doc.recompute()

body32.Placement = App.Placement(Vector(-37.000006, -18, -65.000003), App.Rotation(Vector(0, 1, 0), 90.00001))
boolean26 = body33.newObject("PartDesign::Boolean", "Boolean025")
boolean26.Type = "Fuse"
boolean26.addObjects([body32])
doc.recompute()

boolean27 = body33.newObject("PartDesign::Boolean", "Boolean026")
boolean27.Type = "Fuse"
boolean27.addObjects([body25])
doc.recompute()

boolean28 = body33.newObject("PartDesign::Boolean", "Boolean027")
boolean28.Type = "Fuse"
boolean28.addObjects([body28])
doc.recompute()

boolean29 = body33.newObject("PartDesign::Boolean", "Boolean028")
boolean29.Type = "Fuse"
boolean29.addObjects([body31])
body34 = doc.addObject("PartDesign::Body", "Body033")

sketch17 = body34.newObject("Sketcher::SketchObject", "Sketch016")
sketch17.AttachmentSupport = (doc.getObject("XZ_Plane033"), [""])
sketch17.MapMode = "FlatFace"
sketch17.AttachmentOffset = App.Placement(Vector(0, 0, 10), App.Rotation())
add_polygon(sketch17, [(-5, 0), (-5, -265), (-2.5, -265), (-2.5, -300), (0, -300), (0, 35), (-2.5, 35), (-2.5, 0)])
sketch17.addConstraint(Sketcher.Constraint("Vertical", 0))
sketch17.addConstraint(Sketcher.Constraint("Horizontal", 1))
sketch17.addConstraint(Sketcher.Constraint("Vertical", 2))
sketch17.addConstraint(Sketcher.Constraint("Horizontal", 3))
sketch17.addConstraint(Sketcher.Constraint("Vertical", 4))
sketch17.addConstraint(Sketcher.Constraint("Horizontal", 5))
sketch17.addConstraint(Sketcher.Constraint("Vertical", 6))
sketch17.addConstraint(Sketcher.Constraint("Horizontal", 7))
sketch17.addConstraint(Sketcher.Constraint("PointOnObject", 3, 2, -2))
sketch17.addConstraint(Sketcher.Constraint("PointOnObject", 6, 2, -1))
sketch17.addConstraint(Sketcher.Constraint("Vertical", 2, 2, 5, 2))
sketch17.addConstraint(Sketcher.Constraint("Equal", 1, 3))
sketch17.addConstraint(Sketcher.Constraint("Equal", 2, 6))
sketch17.addConstraint(Sketcher.Constraint("DistanceY", 0, 2, 0, 1, 265.0))
sketch17.addConstraint(Sketcher.Constraint("DistanceY", 2, 2, 2, 1, 35.0))
sketch17.addConstraint(Sketcher.Constraint("DistanceX", 1, 1, 1, 2, 2.5))
sketch17.setExpression("Constraints[21]", "Params.sketch17_height")
sketch17.setExpression("Constraints[22]", "Params.sketch17_height2")
sketch17.setExpression("Constraints[23]", "Params.sketch17_width")
pad16 = body34.newObject("PartDesign::Pad", "Pad015")
pad16.Profile = sketch17
pad16.setExpression("Length", "Params.pad16_length")
body35 = doc.addObject("PartDesign::Body", "Body034")
doc.recompute()

body35.BaseFeature = body34
doc.recompute()

body36 = doc.addObject("PartDesign::Body", "Body035")
body36.BaseFeature = body33
boolean30 = body35.newObject("PartDesign::Boolean", "Boolean029")
boolean30.Type = "Cut"
boolean30.addObjects([body36])
doc.recompute()
body37 = doc.addObject("PartDesign::Body", "Body036")
doc.recompute()

mirroring2 = doc.addObject("Part::Mirroring", "Mirroring001")
mirroring2.Source = body35
mirroring2.Base = Vector(0, 0, 0)
mirroring2.Normal = Vector(1, 0, 0)
body37.BaseFeature = mirroring2
doc.recompute()

boolean31 = body34.newObject("PartDesign::Boolean", "Boolean030")
boolean31.Type = "Cut"
boolean31.addObjects([body33])
body38 = doc.addObject("PartDesign::Body", "Body037")
doc.recompute()

body34.Placement = App.Placement(Vector(0, -214, 0), App.Rotation(Vector(0, 0, 1), 0))
boolean32 = body38.newObject("PartDesign::Boolean", "Boolean031")
boolean32.Type = "Fuse"
boolean32.addObjects([body34])
body39 = doc.addObject("PartDesign::Body", "Body038")
doc.recompute()

mirroring3 = doc.addObject("Part::Mirroring", "Mirroring002")
mirroring3.Source = body38
mirroring3.Base = Vector(0, 0, 0)
mirroring3.Normal = Vector(1, 0, 0)
body39.BaseFeature = mirroring3
doc.recompute()

doc.recompute()
